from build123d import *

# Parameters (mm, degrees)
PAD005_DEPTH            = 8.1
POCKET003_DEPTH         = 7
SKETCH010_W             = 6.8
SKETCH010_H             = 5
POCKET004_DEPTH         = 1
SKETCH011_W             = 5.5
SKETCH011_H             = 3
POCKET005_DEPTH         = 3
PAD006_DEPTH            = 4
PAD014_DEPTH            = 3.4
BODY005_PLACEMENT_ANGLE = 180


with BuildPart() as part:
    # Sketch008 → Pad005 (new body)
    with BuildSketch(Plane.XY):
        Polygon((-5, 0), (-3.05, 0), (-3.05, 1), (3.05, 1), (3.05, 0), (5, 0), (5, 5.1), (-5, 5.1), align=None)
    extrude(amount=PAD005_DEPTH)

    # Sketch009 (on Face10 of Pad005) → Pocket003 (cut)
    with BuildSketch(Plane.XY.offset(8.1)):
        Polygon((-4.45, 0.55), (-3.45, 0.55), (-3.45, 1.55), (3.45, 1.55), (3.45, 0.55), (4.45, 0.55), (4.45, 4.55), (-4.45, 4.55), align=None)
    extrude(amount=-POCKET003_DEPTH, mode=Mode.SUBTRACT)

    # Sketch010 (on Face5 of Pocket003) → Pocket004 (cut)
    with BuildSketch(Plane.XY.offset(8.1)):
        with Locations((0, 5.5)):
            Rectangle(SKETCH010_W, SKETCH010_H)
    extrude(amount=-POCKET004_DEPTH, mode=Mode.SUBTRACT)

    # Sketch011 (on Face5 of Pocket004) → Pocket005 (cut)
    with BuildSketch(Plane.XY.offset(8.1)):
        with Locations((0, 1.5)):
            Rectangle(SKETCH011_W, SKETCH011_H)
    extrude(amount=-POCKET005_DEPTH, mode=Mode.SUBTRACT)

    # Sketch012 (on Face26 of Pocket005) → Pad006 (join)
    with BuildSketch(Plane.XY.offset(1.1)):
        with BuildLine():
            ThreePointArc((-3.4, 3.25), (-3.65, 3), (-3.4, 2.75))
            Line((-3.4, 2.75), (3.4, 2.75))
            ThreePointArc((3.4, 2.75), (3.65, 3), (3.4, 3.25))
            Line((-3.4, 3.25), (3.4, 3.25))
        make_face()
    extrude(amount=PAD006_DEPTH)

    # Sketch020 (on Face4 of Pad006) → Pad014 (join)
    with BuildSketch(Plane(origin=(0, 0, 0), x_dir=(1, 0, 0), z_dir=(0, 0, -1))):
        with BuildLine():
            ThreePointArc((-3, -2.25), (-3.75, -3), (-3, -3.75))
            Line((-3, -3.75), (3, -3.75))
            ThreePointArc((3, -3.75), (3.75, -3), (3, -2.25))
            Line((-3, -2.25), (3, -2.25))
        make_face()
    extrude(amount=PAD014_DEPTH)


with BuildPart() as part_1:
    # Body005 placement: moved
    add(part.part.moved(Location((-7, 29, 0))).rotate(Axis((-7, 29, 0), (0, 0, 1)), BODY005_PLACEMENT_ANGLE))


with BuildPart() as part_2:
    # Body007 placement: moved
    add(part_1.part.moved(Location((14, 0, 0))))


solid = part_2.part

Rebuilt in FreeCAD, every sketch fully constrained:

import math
import FreeCAD as App
import Part
import Sketcher

V = App.Vector
Q = App.Units.Quantity

doc = App.newDocument("Part")
body = doc.addObject("PartDesign::Body", "Body")

# Sketch on XY plane
sketch1 = doc.addObject("Sketcher::SketchObject", "Sketch")
body.addObject(sketch1)
sketch1.AttachmentSupport = (doc.XY_Plane, [""])
sketch1.MapMode = "FlatFace"
sketch1.addGeometry(Part.LineSegment(V(-5, 0, 0), V(-3, 0, 0)), False)
sketch1.addGeometry(Part.LineSegment(V(-3, 0, 0), V(-3, 1, 0)), False)
sketch1.addGeometry(Part.LineSegment(V(-3, 1, 0), V(3, 1, 0)), False)
sketch1.addGeometry(Part.LineSegment(V(3, 1, 0), V(3, 0, 0)), False)
sketch1.addGeometry(Part.LineSegment(V(3, 0, 0), V(5, 0, 0)), False)
sketch1.addGeometry(Part.LineSegment(V(5, 0, 0), V(5, 5.1, 0)), False)
sketch1.addGeometry(Part.LineSegment(V(5, 5.1, 0), V(-5, 5.1, 0)), False)
sketch1.addGeometry(Part.LineSegment(V(-5, 5.1, 0), V(-5, 0, 0)), False)
sketch1.addConstraint(Sketcher.Constraint("Coincident", 0, 2, 1, 1))
sketch1.addConstraint(Sketcher.Constraint("Coincident", 1, 2, 2, 1))
sketch1.addConstraint(Sketcher.Constraint("Coincident", 2, 2, 3, 1))
sketch1.addConstraint(Sketcher.Constraint("Coincident", 3, 2, 4, 1))
sketch1.addConstraint(Sketcher.Constraint("Coincident", 4, 2, 5, 1))
sketch1.addConstraint(Sketcher.Constraint("Coincident", 5, 2, 6, 1))
sketch1.addConstraint(Sketcher.Constraint("Coincident", 6, 2, 7, 1))
sketch1.addConstraint(Sketcher.Constraint("Coincident", 7, 2, 0, 1))
sketch1.addConstraint(Sketcher.Constraint("Horizontal", 0))
sketch1.addConstraint(Sketcher.Constraint("Vertical", 1))
sketch1.addConstraint(Sketcher.Constraint("Horizontal", 2))
sketch1.addConstraint(Sketcher.Constraint("Vertical", 3))
sketch1.addConstraint(Sketcher.Constraint("Horizontal", 4))
sketch1.addConstraint(Sketcher.Constraint("Vertical", 5))
sketch1.addConstraint(Sketcher.Constraint("Horizontal", 6))
sketch1.addConstraint(Sketcher.Constraint("Vertical", 7))
sketch1.addConstraint(Sketcher.Constraint("Symmetric", 0, 2, 3, 2, -1, 1))
sketch1.addConstraint(Sketcher.Constraint("Symmetric", 4, 2, 7, 2, -2))
sketch1.addConstraint(Sketcher.Constraint("DistanceX", 6, 2, 6, 1, Q("10 mm")))
sketch1.addConstraint(Sketcher.Constraint("DistanceY", 1, 1, 1, 2, Q("1 mm")))
sketch1.addConstraint(Sketcher.Constraint("DistanceX", 2, 1, 2, 2, Q("6.1 mm")))
sketch1.addConstraint(Sketcher.Constraint("DistanceY", 5, 1, 5, 2, Q("5.1 mm")))
pad1 = doc.addObject("PartDesign::Pad", "Pad")
body.addObject(pad1)
pad1.Profile = sketch1
pad1.Length = 8.1

# Sketch on XY plane
sketch2 = doc.addObject("Sketcher::SketchObject", "Sketch001")
body.addObject(sketch2)
sketch2.AttachmentSupport = (doc.XY_Plane, [""])
sketch2.MapMode = "FlatFace"
sketch2.AttachmentOffset = App.Placement(V(0, 0, 8.1), App.Rotation())
sketch2.addGeometry(Part.LineSegment(V(-4.5, 0.6, 0), V(-3.5, 0.6, 0)), False)
sketch2.addGeometry(Part.LineSegment(V(-3.5, 0.6, 0), V(-3.5, 1.6, 0)), False)
sketch2.addGeometry(Part.LineSegment(V(-3.5, 1.6, 0), V(3.5, 1.6, 0)), False)
sketch2.addGeometry(Part.LineSegment(V(3.5, 1.6, 0), V(3.5, 0.6, 0)), False)
sketch2.addGeometry(Part.LineSegment(V(3.5, 0.6, 0), V(4.5, 0.6, 0)), False)
sketch2.addGeometry(Part.LineSegment(V(4.5, 0.6, 0), V(4.5, 4.5, 0)), False)
sketch2.addGeometry(Part.LineSegment(V(4.5, 4.5, 0), V(-4.5, 4.5, 0)), False)
sketch2.addGeometry(Part.LineSegment(V(-4.5, 4.5, 0), V(-4.5, 0.6, 0)), False)
sketch2.addConstraint(Sketcher.Constraint("Coincident", 0, 2, 1, 1))
sketch2.addConstraint(Sketcher.Constraint("Coincident", 1, 2, 2, 1))
sketch2.addConstraint(Sketcher.Constraint("Coincident", 2, 2, 3, 1))
sketch2.addConstraint(Sketcher.Constraint("Coincident", 3, 2, 4, 1))
sketch2.addConstraint(Sketcher.Constraint("Coincident", 4, 2, 5, 1))
sketch2.addConstraint(Sketcher.Constraint("Coincident", 5, 2, 6, 1))
sketch2.addConstraint(Sketcher.Constraint("Coincident", 6, 2, 7, 1))
sketch2.addConstraint(Sketcher.Constraint("Coincident", 7, 2, 0, 1))
sketch2.addConstraint(Sketcher.Constraint("Horizontal", 0))
sketch2.addConstraint(Sketcher.Constraint("Vertical", 1))
sketch2.addConstraint(Sketcher.Constraint("Horizontal", 2))
sketch2.addConstraint(Sketcher.Constraint("Vertical", 3))
sketch2.addConstraint(Sketcher.Constraint("Horizontal", 4))
sketch2.addConstraint(Sketcher.Constraint("Vertical", 5))
sketch2.addConstraint(Sketcher.Constraint("Horizontal", 6))
sketch2.addConstraint(Sketcher.Constraint("Vertical", 7))
sketch2.addConstraint(Sketcher.Constraint("Symmetric", 0, 2, 3, 2, -2))
sketch2.addConstraint(Sketcher.Constraint("Equal", 0, 4))
sketch2.addConstraint(Sketcher.Constraint("Equal", 4, 1))
sketch2.addConstraint(Sketcher.Constraint("DistanceX", 0, 1, 0, 2, Q("1 mm")))
sketch2.addConstraint(Sketcher.Constraint("DistanceY", 5, 1, 5, 2, Q("4 mm")))
sketch2.addConstraint(Sketcher.Constraint("DistanceX", 2, 1, 2, 2, Q("6.9 mm")))
sketch2.addConstraint(Sketcher.Constraint("DistanceY", -1, 1, 0, 2, Q("0.55 mm")))
pocket1 = doc.addObject("PartDesign::Pocket", "Pocket")
body.addObject(pocket1)
pocket1.Profile = sketch2
pocket1.Length = 7

# Sketch on XY plane
sketch3 = doc.addObject("Sketcher::SketchObject", "Sketch002")
body.addObject(sketch3)
sketch3.AttachmentSupport = (doc.XY_Plane, [""])
sketch3.MapMode = "FlatFace"
sketch3.AttachmentOffset = App.Placement(V(0, 0, 8.1), App.Rotation())
sketch3.addGeometry(Part.LineSegment(V(-3, 8, 0), V(-3, 3, 0)), False)
sketch3.addGeometry(Part.LineSegment(V(-3, 3, 0), V(3, 3, 0)), False)
sketch3.addGeometry(Part.LineSegment(V(3, 3, 0), V(3, 8, 0)), False)
sketch3.addGeometry(Part.LineSegment(V(3, 8, 0), V(-3, 8, 0)), False)
sketch3.addConstraint(Sketcher.Constraint("Coincident", 0, 2, 1, 1))
sketch3.addConstraint(Sketcher.Constraint("Coincident", 1, 2, 2, 1))
sketch3.addConstraint(Sketcher.Constraint("Coincident", 2, 2, 3, 1))
sketch3.addConstraint(Sketcher.Constraint("Coincident", 3, 2, 0, 1))
sketch3.addConstraint(Sketcher.Constraint("Vertical", 0))
sketch3.addConstraint(Sketcher.Constraint("Horizontal", 1))
sketch3.addConstraint(Sketcher.Constraint("Vertical", 2))
sketch3.addConstraint(Sketcher.Constraint("Horizontal", 3))
sketch3.addConstraint(Sketcher.Constraint("DistanceY", 0, 2, 0, 1, Q("5 mm")))
sketch3.addConstraint(Sketcher.Constraint("DistanceX", 1, 1, 1, 2, Q("6.8 mm")))
sketch3.addConstraint(Sketcher.Constraint("DistanceY", -1, 1, 0, 2, Q("3 mm")))
sketch3.addConstraint(Sketcher.Constraint("DistanceX", 0, 2, -1, 1, Q("3.4 mm")))
pocket2 = doc.addObject("PartDesign::Pocket", "Pocket001")
body.addObject(pocket2)
pocket2.Profile = sketch3
pocket2.Length = 1

# Sketch on XY plane
sketch4 = doc.addObject("Sketcher::SketchObject", "Sketch003")
body.addObject(sketch4)
sketch4.AttachmentSupport = (doc.XY_Plane, [""])
sketch4.MapMode = "FlatFace"
sketch4.AttachmentOffset = App.Placement(V(0, 0, 8.1), App.Rotation())
sketch4.addGeometry(Part.LineSegment(V(-2.8, 3, 0), V(-2.8, 0, 0)), False)
sketch4.addGeometry(Part.LineSegment(V(-2.8, 0, 0), V(2.8, 0, 0)), False)
sketch4.addGeometry(Part.LineSegment(V(2.8, 0, 0), V(2.8, 3, 0)), False)
sketch4.addGeometry(Part.LineSegment(V(2.8, 3, 0), V(-2.8, 3, 0)), False)
sketch4.addConstraint(Sketcher.Constraint("Coincident", 0, 2, 1, 1))
sketch4.addConstraint(Sketcher.Constraint("Coincident", 1, 2, 2, 1))
sketch4.addConstraint(Sketcher.Constraint("Coincident", 2, 2, 3, 1))
sketch4.addConstraint(Sketcher.Constraint("Coincident", 3, 2, 0, 1))
sketch4.addConstraint(Sketcher.Constraint("Vertical", 0))
sketch4.addConstraint(Sketcher.Constraint("Horizontal", 1))
sketch4.addConstraint(Sketcher.Constraint("Vertical", 2))
sketch4.addConstraint(Sketcher.Constraint("Horizontal", 3))
sketch4.addConstraint(Sketcher.Constraint("Symmetric", 0, 2, 1, 2, -1, 1))
sketch4.addConstraint(Sketcher.Constraint("DistanceY", 0, 2, 0, 1, Q("3 mm")))
sketch4.addConstraint(Sketcher.Constraint("DistanceX", 1, 1, 1, 2, Q("5.5 mm")))
pocket3 = doc.addObject("PartDesign::Pocket", "Pocket002")
body.addObject(pocket3)
pocket3.Profile = sketch4
pocket3.Length = 3

# Sketch on XY plane
sketch5 = doc.addObject("Sketcher::SketchObject", "Sketch004")
body.addObject(sketch5)
sketch5.AttachmentSupport = (doc.XY_Plane, [""])
sketch5.MapMode = "FlatFace"
sketch5.AttachmentOffset = App.Placement(V(0, 0, 1.1), App.Rotation())
sketch5.addGeometry(Part.ArcOfCircle(Part.Circle(V(-3.4, 3, 0), V(0, 0, 1), 0.25), math.radians(90), math.radians(270)), False)
sketch5.addGeometry(Part.LineSegment(V(-3.4, 2.75, 0), V(3.4, 2.75, 0)), False)
sketch5.addGeometry(Part.ArcOfCircle(Part.Circle(V(3.4, 3, 0), V(0, 0, 1), 0.25), math.radians(-90), math.radians(90)), False)
sketch5.addGeometry(Part.LineSegment(V(3.4, 3.25, 0), V(-3.4, 3.25, 0)), False)
sketch5.addConstraint(Sketcher.Constraint("Tangent", 0, 2, 1, 1))
sketch5.addConstraint(Sketcher.Constraint("Tangent", 1, 2, 2, 1))
sketch5.addConstraint(Sketcher.Constraint("Tangent", 2, 2, 3, 1))
sketch5.addConstraint(Sketcher.Constraint("Tangent", 3, 2, 0, 1))
sketch5.addConstraint(Sketcher.Constraint("Horizontal", 1))
sketch5.addConstraint(Sketcher.Constraint("Horizontal", 3))
sketch5.addConstraint(Sketcher.Constraint("Radius", 0, Q("0.25 mm")))
sketch5.addConstraint(Sketcher.Constraint("DistanceX", 1, 1, 1, 2, Q("6.8 mm")))
sketch5.addConstraint(Sketcher.Constraint("DistanceY", -1, 1, 0, 3, Q("3 mm")))
sketch5.addConstraint(Sketcher.Constraint("DistanceX", 0, 3, -1, 1, Q("3.4 mm")))
pad2 = doc.addObject("PartDesign::Pad", "Pad001")
body.addObject(pad2)
pad2.Profile = sketch5
pad2.Length = 4

# Sketch on XY plane
sketch6 = doc.addObject("Sketcher::SketchObject", "Sketch005")
body.addObject(sketch6)
sketch6.AttachmentSupport = (doc.XY_Plane, [""])
sketch6.MapMode = "FlatFace"
sketch6.addGeometry(Part.ArcOfCircle(Part.Circle(V(-3, 3, 0), V(0, 0, 1), 0.8), math.radians(90), math.radians(270)), False)
sketch6.addGeometry(Part.LineSegment(V(-3, 3.8, 0), V(3, 3.8, 0)), False)
sketch6.addGeometry(Part.ArcOfCircle(Part.Circle(V(3, 3, 0), V(0, 0, 1), 0.8), math.radians(-90), math.radians(90)), False)
sketch6.addGeometry(Part.LineSegment(V(3, 2.2, 0), V(-3, 2.2, 0)), False)
sketch6.addConstraint(Sketcher.Constraint("Tangent", 0, 1, 1, 1))
sketch6.addConstraint(Sketcher.Constraint("Tangent", 1, 2, 2, 2))
sketch6.addConstraint(Sketcher.Constraint("Tangent", 2, 1, 3, 1))
sketch6.addConstraint(Sketcher.Constraint("Tangent", 3, 2, 0, 2))
sketch6.addConstraint(Sketcher.Constraint("Horizontal", 1))
sketch6.addConstraint(Sketcher.Constraint("Horizontal", 3))
sketch6.addConstraint(Sketcher.Constraint("DistanceX", 1, 1, 1, 2, Q("6 mm")))
sketch6.addConstraint(Sketcher.Constraint("Radius", 0, Q("0.75 mm")))
sketch6.addConstraint(Sketcher.Constraint("DistanceX", 0, 3, -1, 1, Q("3 mm")))
sketch6.addConstraint(Sketcher.Constraint("DistanceY", -1, 1, 0, 3, Q("3 mm")))
pad3 = doc.addObject("PartDesign::Pad", "Pad002")
body.addObject(pad3)
pad3.Profile = sketch6
pad3.Length = 3.4
pad3.Reversed = True
body2 = doc.addObject("PartDesign::Body", "Body001")
doc.recompute()

body.Placement = App.Placement(V(-7, 29, 0), App.Rotation(V(0, 0, 1), 180))
boolean = doc.addObject("PartDesign::Boolean", "Boolean")
body2.addObject(boolean)
boolean.Type = "Fuse"
boolean.addObjects([body])
body3 = doc.addObject("PartDesign::Body", "Body002")
doc.recompute()

body2.Placement = App.Placement(V(14, 0, 0), App.Rotation(V(0, 0, 1), 0))
boolean2 = doc.addObject("PartDesign::Boolean", "Boolean001")
body3.addObject(boolean2)
boolean2.Type = "Fuse"
boolean2.addObjects([body2])

doc.recompute()
